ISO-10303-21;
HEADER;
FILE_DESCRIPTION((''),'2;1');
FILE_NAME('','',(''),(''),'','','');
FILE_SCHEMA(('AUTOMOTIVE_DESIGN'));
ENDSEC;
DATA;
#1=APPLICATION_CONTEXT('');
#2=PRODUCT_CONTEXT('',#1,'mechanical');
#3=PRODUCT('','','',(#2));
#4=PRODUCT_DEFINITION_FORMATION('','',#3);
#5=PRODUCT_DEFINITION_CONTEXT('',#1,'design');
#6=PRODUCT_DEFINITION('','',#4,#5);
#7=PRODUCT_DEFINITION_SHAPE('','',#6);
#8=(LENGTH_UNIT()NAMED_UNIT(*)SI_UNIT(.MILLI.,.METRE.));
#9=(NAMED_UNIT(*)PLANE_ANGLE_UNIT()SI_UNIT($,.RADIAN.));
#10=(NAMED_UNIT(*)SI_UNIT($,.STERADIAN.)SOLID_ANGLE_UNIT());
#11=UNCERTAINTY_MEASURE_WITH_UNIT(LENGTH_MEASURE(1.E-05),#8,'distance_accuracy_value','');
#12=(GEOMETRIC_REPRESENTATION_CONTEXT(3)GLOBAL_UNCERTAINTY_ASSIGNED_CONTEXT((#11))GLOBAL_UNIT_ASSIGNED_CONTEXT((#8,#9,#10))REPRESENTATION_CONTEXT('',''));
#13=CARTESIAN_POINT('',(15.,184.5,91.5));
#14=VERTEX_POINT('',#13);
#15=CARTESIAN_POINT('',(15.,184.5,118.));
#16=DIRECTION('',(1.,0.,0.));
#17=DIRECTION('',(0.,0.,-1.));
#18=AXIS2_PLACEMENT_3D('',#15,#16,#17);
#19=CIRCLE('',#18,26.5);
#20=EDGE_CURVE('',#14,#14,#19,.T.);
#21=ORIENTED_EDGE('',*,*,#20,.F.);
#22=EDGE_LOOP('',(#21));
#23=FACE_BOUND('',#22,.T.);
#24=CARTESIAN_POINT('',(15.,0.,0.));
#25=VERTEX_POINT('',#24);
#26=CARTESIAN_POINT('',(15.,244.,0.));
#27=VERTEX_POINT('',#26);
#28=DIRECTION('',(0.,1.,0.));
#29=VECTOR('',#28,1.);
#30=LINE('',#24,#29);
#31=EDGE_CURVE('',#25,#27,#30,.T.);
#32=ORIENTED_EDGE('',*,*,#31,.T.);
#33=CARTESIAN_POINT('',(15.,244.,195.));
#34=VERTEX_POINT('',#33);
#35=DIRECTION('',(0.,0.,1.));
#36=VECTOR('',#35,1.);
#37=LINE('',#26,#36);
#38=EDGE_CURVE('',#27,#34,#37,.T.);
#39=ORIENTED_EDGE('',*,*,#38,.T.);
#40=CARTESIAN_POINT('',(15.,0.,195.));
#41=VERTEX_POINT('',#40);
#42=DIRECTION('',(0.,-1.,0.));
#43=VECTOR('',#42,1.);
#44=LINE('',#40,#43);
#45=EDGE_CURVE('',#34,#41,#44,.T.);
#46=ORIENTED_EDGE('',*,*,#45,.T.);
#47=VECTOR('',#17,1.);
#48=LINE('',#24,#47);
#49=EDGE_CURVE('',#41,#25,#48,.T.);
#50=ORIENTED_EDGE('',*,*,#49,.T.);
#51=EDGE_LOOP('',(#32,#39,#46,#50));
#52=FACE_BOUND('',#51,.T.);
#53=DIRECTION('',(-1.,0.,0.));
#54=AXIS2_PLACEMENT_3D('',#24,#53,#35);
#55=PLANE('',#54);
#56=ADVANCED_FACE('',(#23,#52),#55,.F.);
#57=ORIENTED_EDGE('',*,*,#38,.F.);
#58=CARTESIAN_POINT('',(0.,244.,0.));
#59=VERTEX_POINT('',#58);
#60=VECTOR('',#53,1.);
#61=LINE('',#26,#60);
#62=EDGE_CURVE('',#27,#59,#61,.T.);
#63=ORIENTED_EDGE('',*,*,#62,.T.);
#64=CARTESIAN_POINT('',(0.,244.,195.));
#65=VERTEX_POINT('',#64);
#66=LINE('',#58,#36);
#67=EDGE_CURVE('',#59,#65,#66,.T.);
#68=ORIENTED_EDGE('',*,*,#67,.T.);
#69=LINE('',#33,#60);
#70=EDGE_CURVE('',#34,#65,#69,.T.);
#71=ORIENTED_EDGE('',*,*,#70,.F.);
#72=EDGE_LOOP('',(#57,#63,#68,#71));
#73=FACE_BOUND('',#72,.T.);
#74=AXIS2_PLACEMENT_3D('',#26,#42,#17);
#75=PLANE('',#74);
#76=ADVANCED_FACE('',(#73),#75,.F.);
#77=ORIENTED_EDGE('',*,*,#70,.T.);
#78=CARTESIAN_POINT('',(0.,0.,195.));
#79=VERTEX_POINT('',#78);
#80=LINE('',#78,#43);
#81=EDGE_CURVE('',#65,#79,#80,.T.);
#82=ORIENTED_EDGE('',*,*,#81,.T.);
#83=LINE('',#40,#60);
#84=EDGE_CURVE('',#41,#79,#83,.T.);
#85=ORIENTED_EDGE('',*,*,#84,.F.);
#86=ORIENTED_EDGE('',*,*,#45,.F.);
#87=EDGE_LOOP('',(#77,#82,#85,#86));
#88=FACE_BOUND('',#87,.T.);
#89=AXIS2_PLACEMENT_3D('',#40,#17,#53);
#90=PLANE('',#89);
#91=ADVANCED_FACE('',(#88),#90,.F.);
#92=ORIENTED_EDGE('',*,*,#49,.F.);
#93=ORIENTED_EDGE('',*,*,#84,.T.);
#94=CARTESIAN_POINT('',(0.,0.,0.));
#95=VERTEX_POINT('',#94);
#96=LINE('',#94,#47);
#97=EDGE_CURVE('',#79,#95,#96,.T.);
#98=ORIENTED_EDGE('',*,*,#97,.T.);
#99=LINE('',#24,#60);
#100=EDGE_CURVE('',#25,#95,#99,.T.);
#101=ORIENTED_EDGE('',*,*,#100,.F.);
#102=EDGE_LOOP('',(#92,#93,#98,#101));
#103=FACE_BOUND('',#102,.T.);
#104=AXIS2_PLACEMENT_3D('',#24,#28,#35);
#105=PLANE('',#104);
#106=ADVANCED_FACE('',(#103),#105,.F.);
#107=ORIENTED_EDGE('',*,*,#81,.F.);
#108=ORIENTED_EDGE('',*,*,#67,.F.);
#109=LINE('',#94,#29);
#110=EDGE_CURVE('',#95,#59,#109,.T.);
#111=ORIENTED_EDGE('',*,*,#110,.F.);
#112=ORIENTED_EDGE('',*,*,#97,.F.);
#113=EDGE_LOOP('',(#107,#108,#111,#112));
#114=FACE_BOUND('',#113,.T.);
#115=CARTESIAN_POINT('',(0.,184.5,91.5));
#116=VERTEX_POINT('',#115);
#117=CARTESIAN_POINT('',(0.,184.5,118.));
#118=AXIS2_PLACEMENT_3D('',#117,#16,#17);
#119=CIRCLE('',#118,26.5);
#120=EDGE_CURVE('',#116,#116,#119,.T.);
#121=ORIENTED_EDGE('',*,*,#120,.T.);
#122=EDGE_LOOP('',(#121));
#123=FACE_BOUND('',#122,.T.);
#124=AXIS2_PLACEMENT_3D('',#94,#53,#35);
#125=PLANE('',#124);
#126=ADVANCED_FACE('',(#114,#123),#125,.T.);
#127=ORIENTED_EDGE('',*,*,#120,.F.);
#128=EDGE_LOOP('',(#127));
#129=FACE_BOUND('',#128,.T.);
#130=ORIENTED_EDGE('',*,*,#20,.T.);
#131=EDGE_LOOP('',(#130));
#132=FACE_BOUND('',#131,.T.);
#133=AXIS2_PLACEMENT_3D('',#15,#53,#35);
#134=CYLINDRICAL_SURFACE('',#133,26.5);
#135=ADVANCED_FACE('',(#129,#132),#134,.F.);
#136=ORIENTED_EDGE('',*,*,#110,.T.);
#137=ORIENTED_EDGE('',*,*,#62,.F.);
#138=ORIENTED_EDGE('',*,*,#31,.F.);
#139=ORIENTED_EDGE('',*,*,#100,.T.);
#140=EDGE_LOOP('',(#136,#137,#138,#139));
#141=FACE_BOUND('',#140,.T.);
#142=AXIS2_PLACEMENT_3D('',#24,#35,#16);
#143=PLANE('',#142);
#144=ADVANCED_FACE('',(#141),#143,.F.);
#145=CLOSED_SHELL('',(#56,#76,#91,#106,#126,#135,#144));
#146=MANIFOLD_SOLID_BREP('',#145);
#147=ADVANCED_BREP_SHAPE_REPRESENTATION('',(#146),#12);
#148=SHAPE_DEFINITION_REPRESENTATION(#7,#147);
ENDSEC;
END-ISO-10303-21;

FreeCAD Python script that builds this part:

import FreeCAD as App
import Part
import Sketcher

V = App.Vector


def add_polygon(sketch, points):
    """Adds a closed chain of lines whose ends are joined by coincident constraints."""
    first, n = sketch.GeometryCount, len(points)
    for a, b in zip(points, points[1:] + points[:1]):
        sketch.addGeometry(Part.LineSegment(App.Vector(*a, 0), App.Vector(*b, 0)), False)
    for i in range(n):
        sketch.addConstraint(Sketcher.Constraint("Coincident", first + i, 2, first + (i + 1) % n, 1))

doc = App.newDocument("Part")
params = doc.addObject("Spreadsheet::Sheet", "Params")
for row, (alias, value) in enumerate([
    ("sketch1_diameter", "53 mm"),
    ("sketch1_width", "244 mm"),
    ("sketch1_height", "195 mm"),
    ("pad1_length", "15 mm"),
], start=1):
    params.set(f"A{row}", alias)
    params.set(f"B{row}", "=" + value)
    params.setAlias(f"B{row}", alias)

body = doc.addObject("PartDesign::Body", "Body")

sketch1 = body.newObject("Sketcher::SketchObject", "Sketch")
sketch1.AttachmentSupport = (doc.getObject("YZ_Plane"), [""])
sketch1.MapMode = "FlatFace"
add_polygon(sketch1, [(0, 195), (0, 0), (244, 0), (244, 195)])
sketch1.addGeometry(Part.Circle(V(184, 118, 0), V(0, 0, 1), 26), False)
sketch1.addConstraint([
    Sketcher.Constraint("Vertical", 0),
    Sketcher.Constraint("Horizontal", 1),
    Sketcher.Constraint("Vertical", 2),
    Sketcher.Constraint("Horizontal", 3),
    Sketcher.Constraint("Coincident", 0, 2, -1, 1),
    Sketcher.Constraint("Diameter", 4, 53.0),
    Sketcher.Constraint("DistanceX", 1, 1, 1, 2, 244.0),
    Sketcher.Constraint("DistanceY", 0, 2, 0, 1, 195.0),
    Sketcher.Constraint("DistanceY", -1, 1, 4, 3, 118.0),
    Sketcher.Constraint("DistanceX", -1, 1, 4, 3, 184.5),
])
sketch1.setExpression("Constraints[9]", "Params.sketch1_diameter")
sketch1.setExpression("Constraints[10]", "Params.sketch1_width")
sketch1.setExpression("Constraints[11]", "Params.sketch1_height")
pad1 = body.newObject("PartDesign::Pad", "Pad")
pad1.Profile = sketch1
pad1.setExpression("Length", "Params.pad1_length")

doc.recompute()
